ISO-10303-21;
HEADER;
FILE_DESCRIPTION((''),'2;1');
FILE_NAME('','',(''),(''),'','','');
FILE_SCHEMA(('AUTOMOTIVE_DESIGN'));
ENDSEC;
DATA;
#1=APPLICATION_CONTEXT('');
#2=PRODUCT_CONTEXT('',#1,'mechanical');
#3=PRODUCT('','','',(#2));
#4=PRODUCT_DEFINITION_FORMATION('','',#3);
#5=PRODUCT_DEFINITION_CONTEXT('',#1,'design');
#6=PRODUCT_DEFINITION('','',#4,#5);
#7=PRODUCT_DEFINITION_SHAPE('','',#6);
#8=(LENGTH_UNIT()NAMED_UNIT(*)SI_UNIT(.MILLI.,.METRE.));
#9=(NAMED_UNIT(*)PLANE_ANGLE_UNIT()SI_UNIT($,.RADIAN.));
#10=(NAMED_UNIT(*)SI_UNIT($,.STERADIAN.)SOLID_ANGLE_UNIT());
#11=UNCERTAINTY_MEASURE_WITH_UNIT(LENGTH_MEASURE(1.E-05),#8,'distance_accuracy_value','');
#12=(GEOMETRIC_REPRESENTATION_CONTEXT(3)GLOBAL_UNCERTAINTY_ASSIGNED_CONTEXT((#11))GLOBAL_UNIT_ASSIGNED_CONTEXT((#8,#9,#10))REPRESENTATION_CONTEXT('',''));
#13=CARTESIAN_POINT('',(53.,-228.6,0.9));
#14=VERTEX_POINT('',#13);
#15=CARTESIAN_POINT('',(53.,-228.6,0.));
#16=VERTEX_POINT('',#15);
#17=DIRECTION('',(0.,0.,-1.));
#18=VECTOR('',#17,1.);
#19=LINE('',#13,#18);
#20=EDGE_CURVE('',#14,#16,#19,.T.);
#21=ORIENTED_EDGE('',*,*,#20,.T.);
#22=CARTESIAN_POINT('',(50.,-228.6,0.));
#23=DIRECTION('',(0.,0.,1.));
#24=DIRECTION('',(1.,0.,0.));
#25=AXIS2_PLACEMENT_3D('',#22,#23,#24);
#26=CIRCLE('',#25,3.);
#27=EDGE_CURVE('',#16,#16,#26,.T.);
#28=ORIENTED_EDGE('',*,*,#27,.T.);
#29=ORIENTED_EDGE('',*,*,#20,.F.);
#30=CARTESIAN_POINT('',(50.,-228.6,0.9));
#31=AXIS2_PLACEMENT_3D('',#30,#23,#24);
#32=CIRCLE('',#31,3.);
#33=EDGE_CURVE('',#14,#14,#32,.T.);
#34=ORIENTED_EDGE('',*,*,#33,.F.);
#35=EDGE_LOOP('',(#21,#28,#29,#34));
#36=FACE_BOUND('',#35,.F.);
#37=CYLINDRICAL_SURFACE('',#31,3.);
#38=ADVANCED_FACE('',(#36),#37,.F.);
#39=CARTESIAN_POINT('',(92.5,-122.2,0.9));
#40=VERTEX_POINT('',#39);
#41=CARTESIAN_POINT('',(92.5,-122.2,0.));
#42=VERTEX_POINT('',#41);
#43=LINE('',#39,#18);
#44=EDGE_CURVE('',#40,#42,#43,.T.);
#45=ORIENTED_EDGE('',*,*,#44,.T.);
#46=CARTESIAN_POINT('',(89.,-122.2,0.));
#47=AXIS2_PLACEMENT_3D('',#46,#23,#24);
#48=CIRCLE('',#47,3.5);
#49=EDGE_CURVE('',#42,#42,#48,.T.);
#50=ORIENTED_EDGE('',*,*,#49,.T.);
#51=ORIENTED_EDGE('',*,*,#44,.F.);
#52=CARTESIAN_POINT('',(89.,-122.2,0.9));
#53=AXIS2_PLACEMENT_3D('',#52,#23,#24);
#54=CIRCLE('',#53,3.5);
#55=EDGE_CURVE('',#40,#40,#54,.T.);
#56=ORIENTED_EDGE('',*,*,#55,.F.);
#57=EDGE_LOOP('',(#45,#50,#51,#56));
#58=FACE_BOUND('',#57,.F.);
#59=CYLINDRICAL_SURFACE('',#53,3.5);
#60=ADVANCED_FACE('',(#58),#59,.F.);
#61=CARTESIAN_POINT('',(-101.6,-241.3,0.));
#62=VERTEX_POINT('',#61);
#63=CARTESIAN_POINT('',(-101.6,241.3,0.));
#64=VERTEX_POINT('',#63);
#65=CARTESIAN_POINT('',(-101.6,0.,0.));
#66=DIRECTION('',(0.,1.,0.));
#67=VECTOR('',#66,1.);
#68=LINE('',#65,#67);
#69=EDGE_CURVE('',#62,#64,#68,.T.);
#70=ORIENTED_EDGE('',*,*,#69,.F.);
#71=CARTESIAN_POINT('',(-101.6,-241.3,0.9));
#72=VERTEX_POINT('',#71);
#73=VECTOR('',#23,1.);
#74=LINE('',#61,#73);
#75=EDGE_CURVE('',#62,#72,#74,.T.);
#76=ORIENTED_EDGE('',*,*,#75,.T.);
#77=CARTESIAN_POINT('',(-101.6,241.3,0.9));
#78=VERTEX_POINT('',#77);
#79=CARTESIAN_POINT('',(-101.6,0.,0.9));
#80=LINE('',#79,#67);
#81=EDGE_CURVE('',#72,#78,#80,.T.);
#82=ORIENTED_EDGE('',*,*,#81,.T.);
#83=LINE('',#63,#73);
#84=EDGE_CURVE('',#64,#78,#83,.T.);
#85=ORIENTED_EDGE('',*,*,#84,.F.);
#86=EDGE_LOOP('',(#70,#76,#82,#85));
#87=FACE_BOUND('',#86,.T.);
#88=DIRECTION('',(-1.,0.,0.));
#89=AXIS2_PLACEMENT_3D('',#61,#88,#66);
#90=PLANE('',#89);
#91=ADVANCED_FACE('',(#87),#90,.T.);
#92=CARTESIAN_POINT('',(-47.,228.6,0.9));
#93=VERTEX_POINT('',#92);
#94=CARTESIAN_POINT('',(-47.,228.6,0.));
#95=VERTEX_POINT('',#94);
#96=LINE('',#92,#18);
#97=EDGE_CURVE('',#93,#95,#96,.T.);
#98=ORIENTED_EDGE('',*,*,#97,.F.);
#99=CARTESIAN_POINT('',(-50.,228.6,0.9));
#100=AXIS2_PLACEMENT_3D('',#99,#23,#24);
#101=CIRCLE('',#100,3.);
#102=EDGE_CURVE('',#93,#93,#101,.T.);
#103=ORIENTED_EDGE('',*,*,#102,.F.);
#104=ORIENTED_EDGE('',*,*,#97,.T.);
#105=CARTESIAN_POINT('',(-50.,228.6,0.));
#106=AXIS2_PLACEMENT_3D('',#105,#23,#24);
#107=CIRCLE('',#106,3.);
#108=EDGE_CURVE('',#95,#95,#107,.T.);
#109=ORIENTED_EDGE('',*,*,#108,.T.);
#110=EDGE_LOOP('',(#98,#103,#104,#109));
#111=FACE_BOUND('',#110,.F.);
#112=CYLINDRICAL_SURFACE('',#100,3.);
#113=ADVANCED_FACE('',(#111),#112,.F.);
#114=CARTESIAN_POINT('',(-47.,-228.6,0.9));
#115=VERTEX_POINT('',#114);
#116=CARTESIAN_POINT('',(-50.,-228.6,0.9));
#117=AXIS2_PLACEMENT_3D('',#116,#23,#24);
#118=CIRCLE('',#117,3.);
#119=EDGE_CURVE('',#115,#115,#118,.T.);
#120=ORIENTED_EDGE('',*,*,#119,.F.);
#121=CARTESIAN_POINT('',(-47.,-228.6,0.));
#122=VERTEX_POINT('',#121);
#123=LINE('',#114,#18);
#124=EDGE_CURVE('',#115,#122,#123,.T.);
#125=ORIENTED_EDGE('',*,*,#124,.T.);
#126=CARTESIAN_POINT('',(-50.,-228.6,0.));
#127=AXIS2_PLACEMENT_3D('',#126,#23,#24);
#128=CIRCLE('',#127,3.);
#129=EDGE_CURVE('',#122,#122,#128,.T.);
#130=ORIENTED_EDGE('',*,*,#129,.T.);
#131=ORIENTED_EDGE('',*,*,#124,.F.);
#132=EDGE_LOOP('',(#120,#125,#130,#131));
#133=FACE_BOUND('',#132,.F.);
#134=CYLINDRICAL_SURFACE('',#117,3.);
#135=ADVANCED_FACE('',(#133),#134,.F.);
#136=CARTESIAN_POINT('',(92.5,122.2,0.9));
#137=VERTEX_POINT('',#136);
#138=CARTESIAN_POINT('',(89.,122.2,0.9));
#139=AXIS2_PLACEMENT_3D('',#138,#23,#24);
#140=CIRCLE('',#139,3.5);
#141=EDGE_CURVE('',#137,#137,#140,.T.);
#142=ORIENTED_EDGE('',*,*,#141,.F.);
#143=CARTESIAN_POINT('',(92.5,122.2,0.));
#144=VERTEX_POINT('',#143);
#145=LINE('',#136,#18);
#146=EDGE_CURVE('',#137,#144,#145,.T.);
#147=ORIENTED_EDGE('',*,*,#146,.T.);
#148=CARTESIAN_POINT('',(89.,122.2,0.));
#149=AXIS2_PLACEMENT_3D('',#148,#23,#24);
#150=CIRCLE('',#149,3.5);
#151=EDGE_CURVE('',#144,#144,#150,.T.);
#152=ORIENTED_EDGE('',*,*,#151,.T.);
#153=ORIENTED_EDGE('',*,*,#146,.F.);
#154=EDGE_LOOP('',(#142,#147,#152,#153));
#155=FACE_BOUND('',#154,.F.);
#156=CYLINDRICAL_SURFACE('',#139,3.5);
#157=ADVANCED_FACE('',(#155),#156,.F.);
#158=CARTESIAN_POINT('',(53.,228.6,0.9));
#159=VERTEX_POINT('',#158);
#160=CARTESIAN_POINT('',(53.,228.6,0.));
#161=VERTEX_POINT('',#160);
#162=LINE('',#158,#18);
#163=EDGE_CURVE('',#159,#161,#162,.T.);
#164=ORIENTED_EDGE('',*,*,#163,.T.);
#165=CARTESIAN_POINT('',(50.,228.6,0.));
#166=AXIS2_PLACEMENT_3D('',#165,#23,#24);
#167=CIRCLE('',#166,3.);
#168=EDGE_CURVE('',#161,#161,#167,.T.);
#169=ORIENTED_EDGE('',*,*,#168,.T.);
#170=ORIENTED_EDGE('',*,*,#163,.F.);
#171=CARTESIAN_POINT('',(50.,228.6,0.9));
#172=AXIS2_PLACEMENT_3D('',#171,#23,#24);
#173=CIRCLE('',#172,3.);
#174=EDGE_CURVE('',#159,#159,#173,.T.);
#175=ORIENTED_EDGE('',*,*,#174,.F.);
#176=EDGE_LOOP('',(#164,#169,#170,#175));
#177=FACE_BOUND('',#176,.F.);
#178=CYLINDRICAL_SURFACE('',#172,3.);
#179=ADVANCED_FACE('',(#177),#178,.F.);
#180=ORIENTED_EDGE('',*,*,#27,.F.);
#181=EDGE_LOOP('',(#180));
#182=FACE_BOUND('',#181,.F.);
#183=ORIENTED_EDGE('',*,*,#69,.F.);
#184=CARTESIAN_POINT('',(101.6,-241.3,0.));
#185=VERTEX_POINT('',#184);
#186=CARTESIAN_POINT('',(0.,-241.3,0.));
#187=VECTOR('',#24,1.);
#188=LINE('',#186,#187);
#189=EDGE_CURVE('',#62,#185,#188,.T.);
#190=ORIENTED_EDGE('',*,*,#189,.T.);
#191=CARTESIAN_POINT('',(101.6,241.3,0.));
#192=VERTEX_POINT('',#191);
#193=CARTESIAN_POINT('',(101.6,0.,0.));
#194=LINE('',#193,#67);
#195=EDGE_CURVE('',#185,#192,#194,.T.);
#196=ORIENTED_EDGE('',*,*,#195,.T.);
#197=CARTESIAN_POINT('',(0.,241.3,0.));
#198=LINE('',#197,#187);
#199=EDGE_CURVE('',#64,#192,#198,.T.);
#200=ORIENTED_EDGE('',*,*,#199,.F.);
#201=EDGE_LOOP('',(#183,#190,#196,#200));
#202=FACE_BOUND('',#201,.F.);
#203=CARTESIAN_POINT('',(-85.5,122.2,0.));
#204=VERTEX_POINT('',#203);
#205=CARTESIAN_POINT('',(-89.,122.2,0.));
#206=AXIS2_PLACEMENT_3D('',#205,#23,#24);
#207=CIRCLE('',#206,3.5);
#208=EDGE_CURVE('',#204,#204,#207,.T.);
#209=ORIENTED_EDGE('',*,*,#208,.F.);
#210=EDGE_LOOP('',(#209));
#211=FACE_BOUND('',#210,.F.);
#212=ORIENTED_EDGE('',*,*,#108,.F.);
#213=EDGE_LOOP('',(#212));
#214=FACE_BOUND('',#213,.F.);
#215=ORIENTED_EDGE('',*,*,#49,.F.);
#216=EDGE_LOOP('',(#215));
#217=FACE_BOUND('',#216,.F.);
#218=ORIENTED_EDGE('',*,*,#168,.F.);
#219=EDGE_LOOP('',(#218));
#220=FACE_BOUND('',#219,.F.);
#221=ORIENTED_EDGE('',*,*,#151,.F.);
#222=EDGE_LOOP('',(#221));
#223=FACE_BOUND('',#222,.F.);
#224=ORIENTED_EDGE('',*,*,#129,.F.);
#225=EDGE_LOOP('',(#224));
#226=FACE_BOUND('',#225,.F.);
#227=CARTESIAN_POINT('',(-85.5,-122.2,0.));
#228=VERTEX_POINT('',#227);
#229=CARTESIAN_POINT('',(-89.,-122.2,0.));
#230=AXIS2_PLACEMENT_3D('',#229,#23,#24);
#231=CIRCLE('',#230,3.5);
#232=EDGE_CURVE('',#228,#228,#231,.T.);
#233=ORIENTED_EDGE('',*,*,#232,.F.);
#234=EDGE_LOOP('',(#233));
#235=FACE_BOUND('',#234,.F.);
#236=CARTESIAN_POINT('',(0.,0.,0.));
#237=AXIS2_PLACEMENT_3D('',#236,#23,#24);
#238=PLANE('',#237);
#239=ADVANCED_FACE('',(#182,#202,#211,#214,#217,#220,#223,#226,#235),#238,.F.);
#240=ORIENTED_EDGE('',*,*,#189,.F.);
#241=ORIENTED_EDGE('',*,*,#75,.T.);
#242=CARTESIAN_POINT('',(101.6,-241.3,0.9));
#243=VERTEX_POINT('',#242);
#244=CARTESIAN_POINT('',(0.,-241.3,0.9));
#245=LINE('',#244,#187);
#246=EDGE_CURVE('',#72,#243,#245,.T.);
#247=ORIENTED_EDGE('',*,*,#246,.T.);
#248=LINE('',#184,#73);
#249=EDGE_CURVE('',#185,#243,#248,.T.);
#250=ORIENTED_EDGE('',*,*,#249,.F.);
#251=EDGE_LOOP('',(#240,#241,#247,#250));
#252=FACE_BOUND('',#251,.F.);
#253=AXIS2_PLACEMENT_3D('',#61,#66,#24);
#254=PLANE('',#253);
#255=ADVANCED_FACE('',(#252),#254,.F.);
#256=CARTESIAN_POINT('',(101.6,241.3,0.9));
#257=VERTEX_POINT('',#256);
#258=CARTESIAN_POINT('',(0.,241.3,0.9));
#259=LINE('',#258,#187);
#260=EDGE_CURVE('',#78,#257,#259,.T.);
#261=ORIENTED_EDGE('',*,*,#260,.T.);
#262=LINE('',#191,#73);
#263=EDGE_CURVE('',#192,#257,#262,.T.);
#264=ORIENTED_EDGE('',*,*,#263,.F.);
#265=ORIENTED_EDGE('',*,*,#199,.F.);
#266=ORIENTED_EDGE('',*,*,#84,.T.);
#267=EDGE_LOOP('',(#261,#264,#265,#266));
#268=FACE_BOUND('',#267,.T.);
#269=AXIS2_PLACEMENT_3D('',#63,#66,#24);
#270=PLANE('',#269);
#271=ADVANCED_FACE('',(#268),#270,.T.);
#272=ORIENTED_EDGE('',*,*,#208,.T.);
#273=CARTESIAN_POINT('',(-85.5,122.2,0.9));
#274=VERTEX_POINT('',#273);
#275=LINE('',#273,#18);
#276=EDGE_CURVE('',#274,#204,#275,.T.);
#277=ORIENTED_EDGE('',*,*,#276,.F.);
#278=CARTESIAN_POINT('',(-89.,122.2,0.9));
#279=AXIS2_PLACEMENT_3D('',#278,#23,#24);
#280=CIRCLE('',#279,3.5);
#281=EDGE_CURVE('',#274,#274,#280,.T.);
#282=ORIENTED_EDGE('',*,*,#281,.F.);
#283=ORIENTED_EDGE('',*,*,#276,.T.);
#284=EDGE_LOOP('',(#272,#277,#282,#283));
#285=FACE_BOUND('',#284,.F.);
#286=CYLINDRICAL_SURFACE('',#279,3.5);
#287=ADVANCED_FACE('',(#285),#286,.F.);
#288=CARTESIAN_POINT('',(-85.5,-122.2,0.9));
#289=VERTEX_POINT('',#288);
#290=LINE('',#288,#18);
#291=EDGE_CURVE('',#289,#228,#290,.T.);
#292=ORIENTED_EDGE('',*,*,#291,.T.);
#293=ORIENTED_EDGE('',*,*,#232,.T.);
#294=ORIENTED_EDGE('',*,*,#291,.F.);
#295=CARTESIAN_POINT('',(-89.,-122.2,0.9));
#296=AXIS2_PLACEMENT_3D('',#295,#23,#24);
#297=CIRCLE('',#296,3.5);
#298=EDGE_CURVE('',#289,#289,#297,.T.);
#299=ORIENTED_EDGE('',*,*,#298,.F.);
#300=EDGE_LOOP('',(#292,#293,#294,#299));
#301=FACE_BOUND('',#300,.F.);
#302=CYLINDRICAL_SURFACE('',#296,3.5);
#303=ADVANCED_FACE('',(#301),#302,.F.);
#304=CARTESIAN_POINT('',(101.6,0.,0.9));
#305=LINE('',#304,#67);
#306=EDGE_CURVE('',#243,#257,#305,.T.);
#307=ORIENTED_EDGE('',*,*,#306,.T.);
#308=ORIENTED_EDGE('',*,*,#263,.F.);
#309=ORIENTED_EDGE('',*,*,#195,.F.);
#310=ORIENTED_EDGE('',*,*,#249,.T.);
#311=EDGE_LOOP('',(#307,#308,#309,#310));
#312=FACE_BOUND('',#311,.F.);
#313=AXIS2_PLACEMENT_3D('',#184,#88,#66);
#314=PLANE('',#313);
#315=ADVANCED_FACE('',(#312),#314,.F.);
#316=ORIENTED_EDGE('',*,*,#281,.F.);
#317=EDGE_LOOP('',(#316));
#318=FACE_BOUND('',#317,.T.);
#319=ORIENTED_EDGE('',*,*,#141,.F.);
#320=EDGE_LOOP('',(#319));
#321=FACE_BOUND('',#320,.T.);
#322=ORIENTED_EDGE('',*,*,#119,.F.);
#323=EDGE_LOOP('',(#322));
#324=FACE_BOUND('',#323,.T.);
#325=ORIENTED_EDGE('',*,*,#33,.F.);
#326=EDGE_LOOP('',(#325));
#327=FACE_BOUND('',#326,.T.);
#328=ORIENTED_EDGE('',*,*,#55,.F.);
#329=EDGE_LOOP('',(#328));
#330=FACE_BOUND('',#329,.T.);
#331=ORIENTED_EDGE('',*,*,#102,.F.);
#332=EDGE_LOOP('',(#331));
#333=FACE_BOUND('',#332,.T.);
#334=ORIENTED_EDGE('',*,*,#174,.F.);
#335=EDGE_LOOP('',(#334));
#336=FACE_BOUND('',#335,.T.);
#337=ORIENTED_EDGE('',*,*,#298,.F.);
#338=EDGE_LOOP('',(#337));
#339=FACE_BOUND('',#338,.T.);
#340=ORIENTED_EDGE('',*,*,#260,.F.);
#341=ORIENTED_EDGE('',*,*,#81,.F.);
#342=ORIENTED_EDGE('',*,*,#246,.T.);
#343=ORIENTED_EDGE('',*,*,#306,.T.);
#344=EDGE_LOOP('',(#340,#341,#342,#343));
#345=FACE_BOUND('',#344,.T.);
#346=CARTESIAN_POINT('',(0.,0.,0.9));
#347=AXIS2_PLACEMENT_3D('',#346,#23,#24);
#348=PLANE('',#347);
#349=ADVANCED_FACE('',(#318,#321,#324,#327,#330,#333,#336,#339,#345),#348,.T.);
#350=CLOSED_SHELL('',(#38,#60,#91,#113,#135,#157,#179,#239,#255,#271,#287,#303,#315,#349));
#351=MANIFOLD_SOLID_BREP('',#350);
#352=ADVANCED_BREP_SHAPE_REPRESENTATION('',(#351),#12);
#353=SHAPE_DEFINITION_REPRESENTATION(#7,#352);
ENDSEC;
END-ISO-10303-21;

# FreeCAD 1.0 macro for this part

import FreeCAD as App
import Part
import Sketcher
Q = App.Units.Quantity

doc = App.newDocument("Part")
body = doc.addObject("PartDesign::Body", "Body")

sketch1 = doc.addObject("Sketcher::SketchObject", "Sketch")
body.addObject(sketch1)
sketch1.AttachmentSupport = (doc.XY_Plane, [""])
sketch1.MapMode = "FlatFace"
sketch1.addGeometry([
    Part.LineSegment(App.Vector(-102, 241, 0), App.Vector(-102, -241, 0)),
    Part.LineSegment(App.Vector(-102, -241, 0), App.Vector(102, -241, 0)),
    Part.LineSegment(App.Vector(102, -241, 0), App.Vector(102, 241, 0)),
    Part.LineSegment(App.Vector(102, 241, 0), App.Vector(-102, 241, 0)),
], False)
sketch1.addConstraint([
    Sketcher.Constraint("Coincident", 0, 2, 1, 1),
    Sketcher.Constraint("Coincident", 1, 2, 2, 1),
    Sketcher.Constraint("Coincident", 2, 2, 3, 1),
    Sketcher.Constraint("Coincident", 3, 2, 0, 1),
    Sketcher.Constraint("Vertical", 0),
    Sketcher.Constraint("Horizontal", 1),
    Sketcher.Constraint("Vertical", 2),
    Sketcher.Constraint("Horizontal", 3),
    Sketcher.Constraint("Symmetric", 0, 2, 2, 2, -1, 1),
    Sketcher.Constraint("DistanceX", 1, 1, 1, 2, Q("203.2 mm")),
    Sketcher.Constraint("DistanceY", 0, 2, 0, 1, Q("482.6 mm")),
])
pad1 = doc.addObject("PartDesign::Pad", "Pad")
body.addObject(pad1)
pad1.Profile = sketch1
pad1.Length = 0.9

sketch2 = doc.addObject("Sketcher::SketchObject", "Sketch001")
body.addObject(sketch2)
sketch2.AttachmentSupport = (doc.XY_Plane, [""])
sketch2.MapMode = "FlatFace"
sketch2.AttachmentOffset = App.Placement(App.Vector(0, 0, 0.9), App.Rotation())
sketch2.addGeometry([
    Part.Circle(App.Vector(-89, 122.2, 0), App.Vector(0, 0, 1), 3.5),
    Part.Circle(App.Vector(89, 122.2, 0), App.Vector(0, 0, 1), 3.5),
    Part.Circle(App.Vector(89, -122.2, 0), App.Vector(0, 0, 1), 3.5),
    Part.Circle(App.Vector(-89, -122.2, 0), App.Vector(0, 0, 1), 3.5),
    Part.Circle(App.Vector(50, 228.6, 0), App.Vector(0, 0, 1), 3),
    Part.Circle(App.Vector(50, -228.6, 0), App.Vector(0, 0, 1), 3),
    Part.Circle(App.Vector(-50, 228.6, 0), App.Vector(0, 0, 1), 3),
    Part.Circle(App.Vector(-50, -228.6, 0), App.Vector(0, 0, 1), 3),
], False)
sketch2.addConstraint([
    Sketcher.Constraint("Equal", 0, 1),
    Sketcher.Constraint("Equal", 1, 2),
    Sketcher.Constraint("Equal", 2, 3),
    Sketcher.Constraint("Equal", 4, 5),
    Sketcher.Constraint("Equal", 5, 6),
    Sketcher.Constraint("Equal", 6, 7),
    Sketcher.Constraint("Symmetric", 0, 3, 2, 3, -1, 1),
    Sketcher.Constraint("Symmetric", 1, 3, 3, 3, -1, 1),
    Sketcher.Constraint("Symmetric", 5, 3, 6, 3, -1, 1),
    Sketcher.Constraint("Symmetric", 4, 3, 7, 3, -1, 1),
    Sketcher.Constraint("Symmetric", 0, 3, 1, 3, -2),
    Sketcher.Constraint("Symmetric", 4, 3, 6, 3, -2),
    Sketcher.Constraint("Diameter", 0, Q("7 mm")),
    Sketcher.Constraint("Diameter", 4, Q("6 mm")),
    Sketcher.Constraint("DistanceX", 0, 3, -1, 1, Q("89 mm")),
    Sketcher.Constraint("DistanceX", -1, 1, 4, 3, Q("50 mm")),
    Sketcher.Constraint("DistanceY", -1, 1, 0, 3, Q("122.2 mm")),
    Sketcher.Constraint("DistanceY", -1, 1, 4, 3, Q("228.6 mm")),
])
pocket1 = doc.addObject("PartDesign::Pocket", "Pocket")
body.addObject(pocket1)
pocket1.Profile = sketch2
pocket1.Length = 10

doc.recompute()
